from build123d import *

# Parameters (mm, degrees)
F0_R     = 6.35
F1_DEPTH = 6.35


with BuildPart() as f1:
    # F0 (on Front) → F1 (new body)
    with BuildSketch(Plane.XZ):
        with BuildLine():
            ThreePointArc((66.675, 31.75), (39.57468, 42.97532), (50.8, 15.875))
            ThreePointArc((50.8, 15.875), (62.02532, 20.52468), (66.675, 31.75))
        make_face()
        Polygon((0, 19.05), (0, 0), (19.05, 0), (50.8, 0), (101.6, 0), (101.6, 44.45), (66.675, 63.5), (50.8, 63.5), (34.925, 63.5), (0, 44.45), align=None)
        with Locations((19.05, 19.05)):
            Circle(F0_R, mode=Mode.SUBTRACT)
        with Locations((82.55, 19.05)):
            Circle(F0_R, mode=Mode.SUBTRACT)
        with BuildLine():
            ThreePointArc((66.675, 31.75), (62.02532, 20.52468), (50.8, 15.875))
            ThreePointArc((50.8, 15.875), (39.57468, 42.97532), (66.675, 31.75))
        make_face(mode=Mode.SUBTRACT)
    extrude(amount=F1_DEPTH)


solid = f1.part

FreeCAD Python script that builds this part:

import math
import FreeCAD as App
import Part
import Sketcher

V = App.Vector
Q = App.Units.Quantity

doc = App.newDocument("Part")
body = doc.addObject("PartDesign::Body", "Body")

sketch1 = doc.addObject("Sketcher::SketchObject", "Sketch")
body.addObject(sketch1)
sketch1.AttachmentSupport = (doc.XZ_Plane, [""])
sketch1.MapMode = "FlatFace"
sketch1.addGeometry([
    Part.LineSegment(V(0, 0, 0), V(102, 0, 0)),
    Part.LineSegment(V(102, 0, 0), V(102, 44, 0)),
    Part.LineSegment(V(102, 44, 0), V(67, 64, 0)),
    Part.LineSegment(V(67, 64, 0), V(35, 64, 0)),
    Part.LineSegment(V(35, 64, 0), V(0, 44, 0)),
    Part.LineSegment(V(0, 44, 0), V(0, 0, 0)),
    Part.Circle(V(19, 19, 0), V(0, 0, 1), 6),
    Part.Circle(V(83, 19, 0), V(0, 0, 1), 6),
    Part.ArcOfCircle(Part.Circle(V(51, 32, 0), V(0, 0, 1), 16), math.radians(0), math.radians(270)),
    Part.ArcOfCircle(Part.Circle(V(51, 32, 0), V(0, 0, 1), 16), math.radians(-90), math.radians(0)),
], False)
sketch1.addConstraint([
    Sketcher.Constraint("Coincident", 0, 2, 1, 1),
    Sketcher.Constraint("Coincident", 1, 2, 2, 1),
    Sketcher.Constraint("Coincident", 2, 2, 3, 1),
    Sketcher.Constraint("Coincident", 3, 2, 4, 1),
    Sketcher.Constraint("Coincident", 4, 2, 5, 1),
    Sketcher.Constraint("Coincident", 5, 2, 0, 1),
    Sketcher.Constraint("Tangent", 8, 1, 9, 2),
    Sketcher.Constraint("Coincident", 9, 1, 8, 2),
    Sketcher.Constraint("Horizontal", 0),
    Sketcher.Constraint("Vertical", 1),
    Sketcher.Constraint("Horizontal", 3),
    Sketcher.Constraint("Vertical", 5),
    Sketcher.Constraint("Coincident", 5, 2, -1, 1),
    Sketcher.Constraint("Equal", 6, 7),
    Sketcher.Constraint("Horizontal", 6, 3, 7, 3),
    Sketcher.Constraint("Horizontal", 1, 2, 4, 2),
    Sketcher.Constraint("Horizontal", 9, 3, 8, 1),
    Sketcher.Constraint("Vertical", 2, 2, 8, 1),
    Sketcher.Constraint("Vertical", 8, 3, 9, 1),
    Sketcher.Constraint("Equal", 2, 4),
    Sketcher.Constraint("Diameter", 6, Q("0.5 in")),
    Sketcher.Constraint("DistanceX", 0, 1, 0, 2, Q("4 in")),
    Sketcher.Constraint("DistanceX", -1, 1, 8, 3, Q("2 in")),
    Sketcher.Constraint("Radius", 8, Q("0.625 in")),
    Sketcher.Constraint("DistanceY", 7, 3, 1, 2, Q("1 in")),
    Sketcher.Constraint("DistanceY", 1, 1, 1, 2, Q("1.75 in")),
    Sketcher.Constraint("DistanceY", -1, 1, 2, 2, Q("2.5 in")),
    Sketcher.Constraint("DistanceX", 6, 3, 7, 3, Q("2.5 in")),
    Sketcher.Constraint("DistanceY", 7, 3, 8, 3, Q("0.5 in")),
    Sketcher.Constraint("DistanceX", -1, 1, 6, 3, Q("0.75 in")),
])
pad1 = doc.addObject("PartDesign::Pad", "Pad")
body.addObject(pad1)
pad1.Profile = sketch1
pad1.Length = Q("0.25 in")

doc.recompute()
